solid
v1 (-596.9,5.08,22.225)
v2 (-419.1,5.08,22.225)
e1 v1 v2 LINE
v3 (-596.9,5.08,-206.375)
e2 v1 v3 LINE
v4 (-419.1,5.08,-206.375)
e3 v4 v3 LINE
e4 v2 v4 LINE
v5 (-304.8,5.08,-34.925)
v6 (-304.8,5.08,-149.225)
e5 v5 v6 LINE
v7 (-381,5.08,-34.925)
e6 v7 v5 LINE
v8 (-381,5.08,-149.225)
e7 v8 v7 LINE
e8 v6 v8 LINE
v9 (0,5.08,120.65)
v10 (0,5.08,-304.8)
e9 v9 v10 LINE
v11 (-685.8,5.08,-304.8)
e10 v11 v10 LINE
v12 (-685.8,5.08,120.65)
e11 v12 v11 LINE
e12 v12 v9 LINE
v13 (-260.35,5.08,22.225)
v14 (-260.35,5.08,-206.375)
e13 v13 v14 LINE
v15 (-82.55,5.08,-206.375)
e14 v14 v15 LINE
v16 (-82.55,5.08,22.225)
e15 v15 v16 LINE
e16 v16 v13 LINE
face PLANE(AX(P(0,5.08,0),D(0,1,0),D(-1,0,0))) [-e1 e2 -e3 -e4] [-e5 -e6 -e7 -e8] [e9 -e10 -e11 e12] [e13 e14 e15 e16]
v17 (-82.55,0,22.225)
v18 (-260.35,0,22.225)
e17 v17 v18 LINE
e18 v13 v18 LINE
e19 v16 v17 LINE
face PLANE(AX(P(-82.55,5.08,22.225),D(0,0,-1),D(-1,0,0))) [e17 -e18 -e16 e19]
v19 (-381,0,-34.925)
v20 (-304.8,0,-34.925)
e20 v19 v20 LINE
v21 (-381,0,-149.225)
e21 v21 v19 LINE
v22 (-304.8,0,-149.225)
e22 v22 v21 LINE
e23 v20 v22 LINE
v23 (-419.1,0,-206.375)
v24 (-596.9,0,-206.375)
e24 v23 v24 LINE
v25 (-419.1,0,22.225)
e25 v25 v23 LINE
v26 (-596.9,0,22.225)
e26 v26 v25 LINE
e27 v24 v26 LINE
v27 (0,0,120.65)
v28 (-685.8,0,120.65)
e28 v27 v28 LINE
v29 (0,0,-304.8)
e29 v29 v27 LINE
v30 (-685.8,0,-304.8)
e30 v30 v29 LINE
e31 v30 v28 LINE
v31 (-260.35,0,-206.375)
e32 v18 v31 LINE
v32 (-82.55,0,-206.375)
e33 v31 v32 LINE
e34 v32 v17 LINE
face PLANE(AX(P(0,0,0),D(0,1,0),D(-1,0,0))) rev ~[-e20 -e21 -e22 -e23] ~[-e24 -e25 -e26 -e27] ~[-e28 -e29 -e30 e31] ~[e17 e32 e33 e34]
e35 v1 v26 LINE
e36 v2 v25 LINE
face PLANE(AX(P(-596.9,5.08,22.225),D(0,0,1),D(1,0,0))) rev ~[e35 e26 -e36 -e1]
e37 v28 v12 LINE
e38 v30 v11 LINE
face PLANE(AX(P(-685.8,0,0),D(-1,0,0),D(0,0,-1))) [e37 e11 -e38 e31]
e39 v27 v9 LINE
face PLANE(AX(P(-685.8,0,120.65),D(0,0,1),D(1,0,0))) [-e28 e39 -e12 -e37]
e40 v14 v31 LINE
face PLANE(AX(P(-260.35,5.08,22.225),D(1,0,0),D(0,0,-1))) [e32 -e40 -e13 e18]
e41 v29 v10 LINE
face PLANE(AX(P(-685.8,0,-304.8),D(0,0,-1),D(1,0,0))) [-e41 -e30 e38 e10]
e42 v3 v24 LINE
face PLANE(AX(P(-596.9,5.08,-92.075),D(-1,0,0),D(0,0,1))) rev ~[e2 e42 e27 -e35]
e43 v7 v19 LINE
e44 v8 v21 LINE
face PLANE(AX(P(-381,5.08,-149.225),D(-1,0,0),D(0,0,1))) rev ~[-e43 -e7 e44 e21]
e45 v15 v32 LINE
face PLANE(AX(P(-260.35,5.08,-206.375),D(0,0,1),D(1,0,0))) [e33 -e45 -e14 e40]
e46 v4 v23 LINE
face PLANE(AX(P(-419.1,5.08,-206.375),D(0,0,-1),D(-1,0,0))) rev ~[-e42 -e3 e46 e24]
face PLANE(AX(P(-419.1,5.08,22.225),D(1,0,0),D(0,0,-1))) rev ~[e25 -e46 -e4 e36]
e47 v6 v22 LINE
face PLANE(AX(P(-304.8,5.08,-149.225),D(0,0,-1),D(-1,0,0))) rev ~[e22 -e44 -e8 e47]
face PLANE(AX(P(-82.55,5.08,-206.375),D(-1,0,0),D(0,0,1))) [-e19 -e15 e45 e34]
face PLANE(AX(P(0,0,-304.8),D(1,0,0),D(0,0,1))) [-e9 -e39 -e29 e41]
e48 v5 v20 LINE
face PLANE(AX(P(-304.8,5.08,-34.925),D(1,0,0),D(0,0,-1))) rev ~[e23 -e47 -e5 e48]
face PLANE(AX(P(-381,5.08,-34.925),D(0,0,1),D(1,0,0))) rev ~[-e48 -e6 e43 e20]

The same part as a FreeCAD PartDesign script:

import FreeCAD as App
import Part
import Sketcher

V = App.Vector
Q = App.Units.Quantity

doc = App.newDocument("Part")
params = doc.addObject("Spreadsheet::Sheet", "Params")
for row, (alias, value) in enumerate([
    ("sketch1_width", "27 in"),
    ("sketch1_height", "12 in"),
    ("pad1_length", "0.2 in"),
    ("sketch2_width", "27 in"),
    ("sketch2_height", "0.2 in"),
    ("pad2_length", "4.75 in"),
    ("sketch3_width", "7 in"),
    ("sketch3_height", "9 in"),
    ("pocket1_length", "1 in"),
    ("sketch4_width", "3 in"),
    ("sketch4_height", "4.5 in"),
    ("pocket2_length", "1 in"),
], start=1):
    params.set(f"A{row}", alias)
    params.set(f"B{row}", "=" + value)
    params.setAlias(f"B{row}", alias)

body = doc.addObject("PartDesign::Body", "Body")

# Sketch on XZ plane
sketch1 = body.newObject("Sketcher::SketchObject", "Sketch")
sketch1.AttachmentSupport = (doc.getObject("XZ_Plane"), [""])
sketch1.MapMode = "FlatFace"
sketch1.addGeometry(Part.LineSegment(V(-686, 0, 0), V(0, 0, 0)), False)
sketch1.addGeometry(Part.LineSegment(V(0, 0, 0), V(0, -305, 0)), False)
sketch1.addGeometry(Part.LineSegment(V(0, -305, 0), V(-686, -305, 0)), False)
sketch1.addGeometry(Part.LineSegment(V(-686, -305, 0), V(-686, 0, 0)), False)
sketch1.addConstraint(Sketcher.Constraint("Coincident", 0, 2, 1, 1))
sketch1.addConstraint(Sketcher.Constraint("Coincident", 1, 2, 2, 1))
sketch1.addConstraint(Sketcher.Constraint("Coincident", 2, 2, 3, 1))
sketch1.addConstraint(Sketcher.Constraint("Coincident", 3, 2, 0, 1))
sketch1.addConstraint(Sketcher.Constraint("Horizontal", 0))
sketch1.addConstraint(Sketcher.Constraint("Vertical", 1))
sketch1.addConstraint(Sketcher.Constraint("Horizontal", 2))
sketch1.addConstraint(Sketcher.Constraint("Vertical", 3))
sketch1.addConstraint(Sketcher.Constraint("Coincident", 0, 2, -1, 1))
sketch1.addConstraint(Sketcher.Constraint("DistanceX", 0, 1, 0, 2, Q("27 in")))
sketch1.addConstraint(Sketcher.Constraint("DistanceY", 1, 2, 1, 1, Q("12 in")))
sketch1.setExpression("Constraints[9]", "Params.sketch1_width")
sketch1.setExpression("Constraints[10]", "Params.sketch1_height")
pad1 = body.newObject("PartDesign::Pad", "Pad")
pad1.Profile = sketch1
pad1.setExpression("Length", "Params.pad1_length")
pad1.Reversed = True

# Sketch on XY plane
sketch2 = body.newObject("Sketcher::SketchObject", "Sketch001")
sketch2.AttachmentSupport = (doc.getObject("XY_Plane"), [""])
sketch2.MapMode = "FlatFace"
sketch2.addGeometry(Part.LineSegment(V(-686, 0, 0), V(0, 0, 0)), False)
sketch2.addGeometry(Part.LineSegment(V(0, 0, 0), V(0, 5, 0)), False)
sketch2.addGeometry(Part.LineSegment(V(0, 5, 0), V(-686, 5, 0)), False)
sketch2.addGeometry(Part.LineSegment(V(-686, 5, 0), V(-686, 0, 0)), False)
sketch2.addConstraint(Sketcher.Constraint("Coincident", 0, 2, 1, 1))
sketch2.addConstraint(Sketcher.Constraint("Coincident", 1, 2, 2, 1))
sketch2.addConstraint(Sketcher.Constraint("Coincident", 2, 2, 3, 1))
sketch2.addConstraint(Sketcher.Constraint("Coincident", 3, 2, 0, 1))
sketch2.addConstraint(Sketcher.Constraint("Horizontal", 0))
sketch2.addConstraint(Sketcher.Constraint("Vertical", 1))
sketch2.addConstraint(Sketcher.Constraint("Horizontal", 2))
sketch2.addConstraint(Sketcher.Constraint("Vertical", 3))
sketch2.addConstraint(Sketcher.Constraint("Coincident", 0, 2, -1, 1))
sketch2.addConstraint(Sketcher.Constraint("DistanceX", 0, 1, 0, 2, Q("27 in")))
sketch2.addConstraint(Sketcher.Constraint("DistanceY", 1, 1, 1, 2, Q("0.2 in")))
sketch2.setExpression("Constraints[9]", "Params.sketch2_width")
sketch2.setExpression("Constraints[10]", "Params.sketch2_height")
pad2 = body.newObject("PartDesign::Pad", "Pad001")
pad2.Profile = sketch2
pad2.setExpression("Length", "Params.pad2_length")

# Sketch on XZ plane
sketch3 = body.newObject("Sketcher::SketchObject", "Sketch002")
sketch3.AttachmentSupport = (doc.getObject("XZ_Plane"), [""])
sketch3.MapMode = "FlatFace"
sketch3.AttachmentOffset = App.Placement(V(0, 0, -0.2 * 25.4), App.Rotation())
sketch3.addGeometry(Part.LineSegment(V(-597, 22, 0), V(-419, 22, 0)), False)
sketch3.addGeometry(Part.LineSegment(V(-419, 22, 0), V(-419, -206, 0)), False)
sketch3.addGeometry(Part.LineSegment(V(-419, -206, 0), V(-597, -206, 0)), False)
sketch3.addGeometry(Part.LineSegment(V(-597, -206, 0), V(-597, 22, 0)), False)
sketch3.addGeometry(Part.LineSegment(V(-260, -206, 0), V(-260, 22, 0)), False)
sketch3.addGeometry(Part.LineSegment(V(-260, 22, 0), V(-83, 22, 0)), False)
sketch3.addGeometry(Part.LineSegment(V(-83, 22, 0), V(-83, -206, 0)), False)
sketch3.addGeometry(Part.LineSegment(V(-83, -206, 0), V(-260, -206, 0)), False)
sketch3.addConstraint(Sketcher.Constraint("Coincident", 0, 2, 1, 1))
sketch3.addConstraint(Sketcher.Constraint("Coincident", 1, 2, 2, 1))
sketch3.addConstraint(Sketcher.Constraint("Coincident", 2, 2, 3, 1))
sketch3.addConstraint(Sketcher.Constraint("Coincident", 3, 2, 0, 1))
sketch3.addConstraint(Sketcher.Constraint("Coincident", 4, 2, 5, 1))
sketch3.addConstraint(Sketcher.Constraint("Coincident", 5, 2, 6, 1))
sketch3.addConstraint(Sketcher.Constraint("Coincident", 6, 2, 7, 1))
sketch3.addConstraint(Sketcher.Constraint("Coincident", 7, 2, 4, 1))
sketch3.addConstraint(Sketcher.Constraint("Horizontal", 0))
sketch3.addConstraint(Sketcher.Constraint("Vertical", 1))
sketch3.addConstraint(Sketcher.Constraint("Horizontal", 2))
sketch3.addConstraint(Sketcher.Constraint("Vertical", 3))
sketch3.addConstraint(Sketcher.Constraint("Vertical", 4))
sketch3.addConstraint(Sketcher.Constraint("Horizontal", 5))
sketch3.addConstraint(Sketcher.Constraint("Vertical", 6))
sketch3.addConstraint(Sketcher.Constraint("Horizontal", 7))
sketch3.addConstraint(Sketcher.Constraint("Horizontal", 3, 2, 4, 2))
sketch3.addConstraint(Sketcher.Constraint("Horizontal", 2, 2, 6, 2))
sketch3.addConstraint(Sketcher.Constraint("Equal", 2, 5))
sketch3.addConstraint(Sketcher.Constraint("DistanceX", 0, 1, 0, 2, Q("7 in")))
sketch3.addConstraint(Sketcher.Constraint("DistanceY", 1, 2, 1, 1, Q("9 in")))
sketch3.addConstraint(Sketcher.Constraint("DistanceX", 0, 2, -1, 1, Q("16.5 in")))
sketch3.addConstraint(Sketcher.Constraint("DistanceX", 4, 2, -1, 1, Q("10.25 in")))
sketch3.addConstraint(Sketcher.Constraint("DistanceY", -1, 1, 0, 2, Q("0.875 in")))
sketch3.setExpression("Constraints[19]", "Params.sketch3_width")
sketch3.setExpression("Constraints[20]", "Params.sketch3_height")
pocket1 = body.newObject("PartDesign::Pocket", "Pocket")
pocket1.Profile = sketch3
pocket1.setExpression("Length", "Params.pocket1_length")
pocket1.Reversed = True

# Sketch on XZ plane
sketch4 = body.newObject("Sketcher::SketchObject", "Sketch003")
sketch4.AttachmentSupport = (doc.getObject("XZ_Plane"), [""])
sketch4.MapMode = "FlatFace"
sketch4.AttachmentOffset = App.Placement(V(0, 0, -0.2 * 25.4), App.Rotation())
sketch4.addGeometry(Part.LineSegment(V(-381, -149, 0), V(-381, -35, 0)), False)
sketch4.addGeometry(Part.LineSegment(V(-381, -35, 0), V(-305, -35, 0)), False)
sketch4.addGeometry(Part.LineSegment(V(-305, -35, 0), V(-305, -149, 0)), False)
sketch4.addGeometry(Part.LineSegment(V(-305, -149, 0), V(-381, -149, 0)), False)
sketch4.addConstraint(Sketcher.Constraint("Coincident", 0, 2, 1, 1))
sketch4.addConstraint(Sketcher.Constraint("Coincident", 1, 2, 2, 1))
sketch4.addConstraint(Sketcher.Constraint("Coincident", 2, 2, 3, 1))
sketch4.addConstraint(Sketcher.Constraint("Coincident", 3, 2, 0, 1))
sketch4.addConstraint(Sketcher.Constraint("Vertical", 0))
sketch4.addConstraint(Sketcher.Constraint("Horizontal", 1))
sketch4.addConstraint(Sketcher.Constraint("Vertical", 2))
sketch4.addConstraint(Sketcher.Constraint("Horizontal", 3))
sketch4.addConstraint(Sketcher.Constraint("DistanceX", 1, 1, 1, 2, Q("3 in")))
sketch4.addConstraint(Sketcher.Constraint("DistanceY", 0, 1, 0, 2, Q("4.5 in")))
sketch4.addConstraint(Sketcher.Constraint("DistanceX", 0, 2, -1, 1, Q("15 in")))
sketch4.addConstraint(Sketcher.Constraint("DistanceY", 0, 2, -1, 1, Q("1.375 in")))
sketch4.setExpression("Constraints[8]", "Params.sketch4_width")
sketch4.setExpression("Constraints[9]", "Params.sketch4_height")
pocket2 = body.newObject("PartDesign::Pocket", "Pocket001")
pocket2.Profile = sketch4
pocket2.setExpression("Length", "Params.pocket2_length")
pocket2.Reversed = True

doc.recompute()
